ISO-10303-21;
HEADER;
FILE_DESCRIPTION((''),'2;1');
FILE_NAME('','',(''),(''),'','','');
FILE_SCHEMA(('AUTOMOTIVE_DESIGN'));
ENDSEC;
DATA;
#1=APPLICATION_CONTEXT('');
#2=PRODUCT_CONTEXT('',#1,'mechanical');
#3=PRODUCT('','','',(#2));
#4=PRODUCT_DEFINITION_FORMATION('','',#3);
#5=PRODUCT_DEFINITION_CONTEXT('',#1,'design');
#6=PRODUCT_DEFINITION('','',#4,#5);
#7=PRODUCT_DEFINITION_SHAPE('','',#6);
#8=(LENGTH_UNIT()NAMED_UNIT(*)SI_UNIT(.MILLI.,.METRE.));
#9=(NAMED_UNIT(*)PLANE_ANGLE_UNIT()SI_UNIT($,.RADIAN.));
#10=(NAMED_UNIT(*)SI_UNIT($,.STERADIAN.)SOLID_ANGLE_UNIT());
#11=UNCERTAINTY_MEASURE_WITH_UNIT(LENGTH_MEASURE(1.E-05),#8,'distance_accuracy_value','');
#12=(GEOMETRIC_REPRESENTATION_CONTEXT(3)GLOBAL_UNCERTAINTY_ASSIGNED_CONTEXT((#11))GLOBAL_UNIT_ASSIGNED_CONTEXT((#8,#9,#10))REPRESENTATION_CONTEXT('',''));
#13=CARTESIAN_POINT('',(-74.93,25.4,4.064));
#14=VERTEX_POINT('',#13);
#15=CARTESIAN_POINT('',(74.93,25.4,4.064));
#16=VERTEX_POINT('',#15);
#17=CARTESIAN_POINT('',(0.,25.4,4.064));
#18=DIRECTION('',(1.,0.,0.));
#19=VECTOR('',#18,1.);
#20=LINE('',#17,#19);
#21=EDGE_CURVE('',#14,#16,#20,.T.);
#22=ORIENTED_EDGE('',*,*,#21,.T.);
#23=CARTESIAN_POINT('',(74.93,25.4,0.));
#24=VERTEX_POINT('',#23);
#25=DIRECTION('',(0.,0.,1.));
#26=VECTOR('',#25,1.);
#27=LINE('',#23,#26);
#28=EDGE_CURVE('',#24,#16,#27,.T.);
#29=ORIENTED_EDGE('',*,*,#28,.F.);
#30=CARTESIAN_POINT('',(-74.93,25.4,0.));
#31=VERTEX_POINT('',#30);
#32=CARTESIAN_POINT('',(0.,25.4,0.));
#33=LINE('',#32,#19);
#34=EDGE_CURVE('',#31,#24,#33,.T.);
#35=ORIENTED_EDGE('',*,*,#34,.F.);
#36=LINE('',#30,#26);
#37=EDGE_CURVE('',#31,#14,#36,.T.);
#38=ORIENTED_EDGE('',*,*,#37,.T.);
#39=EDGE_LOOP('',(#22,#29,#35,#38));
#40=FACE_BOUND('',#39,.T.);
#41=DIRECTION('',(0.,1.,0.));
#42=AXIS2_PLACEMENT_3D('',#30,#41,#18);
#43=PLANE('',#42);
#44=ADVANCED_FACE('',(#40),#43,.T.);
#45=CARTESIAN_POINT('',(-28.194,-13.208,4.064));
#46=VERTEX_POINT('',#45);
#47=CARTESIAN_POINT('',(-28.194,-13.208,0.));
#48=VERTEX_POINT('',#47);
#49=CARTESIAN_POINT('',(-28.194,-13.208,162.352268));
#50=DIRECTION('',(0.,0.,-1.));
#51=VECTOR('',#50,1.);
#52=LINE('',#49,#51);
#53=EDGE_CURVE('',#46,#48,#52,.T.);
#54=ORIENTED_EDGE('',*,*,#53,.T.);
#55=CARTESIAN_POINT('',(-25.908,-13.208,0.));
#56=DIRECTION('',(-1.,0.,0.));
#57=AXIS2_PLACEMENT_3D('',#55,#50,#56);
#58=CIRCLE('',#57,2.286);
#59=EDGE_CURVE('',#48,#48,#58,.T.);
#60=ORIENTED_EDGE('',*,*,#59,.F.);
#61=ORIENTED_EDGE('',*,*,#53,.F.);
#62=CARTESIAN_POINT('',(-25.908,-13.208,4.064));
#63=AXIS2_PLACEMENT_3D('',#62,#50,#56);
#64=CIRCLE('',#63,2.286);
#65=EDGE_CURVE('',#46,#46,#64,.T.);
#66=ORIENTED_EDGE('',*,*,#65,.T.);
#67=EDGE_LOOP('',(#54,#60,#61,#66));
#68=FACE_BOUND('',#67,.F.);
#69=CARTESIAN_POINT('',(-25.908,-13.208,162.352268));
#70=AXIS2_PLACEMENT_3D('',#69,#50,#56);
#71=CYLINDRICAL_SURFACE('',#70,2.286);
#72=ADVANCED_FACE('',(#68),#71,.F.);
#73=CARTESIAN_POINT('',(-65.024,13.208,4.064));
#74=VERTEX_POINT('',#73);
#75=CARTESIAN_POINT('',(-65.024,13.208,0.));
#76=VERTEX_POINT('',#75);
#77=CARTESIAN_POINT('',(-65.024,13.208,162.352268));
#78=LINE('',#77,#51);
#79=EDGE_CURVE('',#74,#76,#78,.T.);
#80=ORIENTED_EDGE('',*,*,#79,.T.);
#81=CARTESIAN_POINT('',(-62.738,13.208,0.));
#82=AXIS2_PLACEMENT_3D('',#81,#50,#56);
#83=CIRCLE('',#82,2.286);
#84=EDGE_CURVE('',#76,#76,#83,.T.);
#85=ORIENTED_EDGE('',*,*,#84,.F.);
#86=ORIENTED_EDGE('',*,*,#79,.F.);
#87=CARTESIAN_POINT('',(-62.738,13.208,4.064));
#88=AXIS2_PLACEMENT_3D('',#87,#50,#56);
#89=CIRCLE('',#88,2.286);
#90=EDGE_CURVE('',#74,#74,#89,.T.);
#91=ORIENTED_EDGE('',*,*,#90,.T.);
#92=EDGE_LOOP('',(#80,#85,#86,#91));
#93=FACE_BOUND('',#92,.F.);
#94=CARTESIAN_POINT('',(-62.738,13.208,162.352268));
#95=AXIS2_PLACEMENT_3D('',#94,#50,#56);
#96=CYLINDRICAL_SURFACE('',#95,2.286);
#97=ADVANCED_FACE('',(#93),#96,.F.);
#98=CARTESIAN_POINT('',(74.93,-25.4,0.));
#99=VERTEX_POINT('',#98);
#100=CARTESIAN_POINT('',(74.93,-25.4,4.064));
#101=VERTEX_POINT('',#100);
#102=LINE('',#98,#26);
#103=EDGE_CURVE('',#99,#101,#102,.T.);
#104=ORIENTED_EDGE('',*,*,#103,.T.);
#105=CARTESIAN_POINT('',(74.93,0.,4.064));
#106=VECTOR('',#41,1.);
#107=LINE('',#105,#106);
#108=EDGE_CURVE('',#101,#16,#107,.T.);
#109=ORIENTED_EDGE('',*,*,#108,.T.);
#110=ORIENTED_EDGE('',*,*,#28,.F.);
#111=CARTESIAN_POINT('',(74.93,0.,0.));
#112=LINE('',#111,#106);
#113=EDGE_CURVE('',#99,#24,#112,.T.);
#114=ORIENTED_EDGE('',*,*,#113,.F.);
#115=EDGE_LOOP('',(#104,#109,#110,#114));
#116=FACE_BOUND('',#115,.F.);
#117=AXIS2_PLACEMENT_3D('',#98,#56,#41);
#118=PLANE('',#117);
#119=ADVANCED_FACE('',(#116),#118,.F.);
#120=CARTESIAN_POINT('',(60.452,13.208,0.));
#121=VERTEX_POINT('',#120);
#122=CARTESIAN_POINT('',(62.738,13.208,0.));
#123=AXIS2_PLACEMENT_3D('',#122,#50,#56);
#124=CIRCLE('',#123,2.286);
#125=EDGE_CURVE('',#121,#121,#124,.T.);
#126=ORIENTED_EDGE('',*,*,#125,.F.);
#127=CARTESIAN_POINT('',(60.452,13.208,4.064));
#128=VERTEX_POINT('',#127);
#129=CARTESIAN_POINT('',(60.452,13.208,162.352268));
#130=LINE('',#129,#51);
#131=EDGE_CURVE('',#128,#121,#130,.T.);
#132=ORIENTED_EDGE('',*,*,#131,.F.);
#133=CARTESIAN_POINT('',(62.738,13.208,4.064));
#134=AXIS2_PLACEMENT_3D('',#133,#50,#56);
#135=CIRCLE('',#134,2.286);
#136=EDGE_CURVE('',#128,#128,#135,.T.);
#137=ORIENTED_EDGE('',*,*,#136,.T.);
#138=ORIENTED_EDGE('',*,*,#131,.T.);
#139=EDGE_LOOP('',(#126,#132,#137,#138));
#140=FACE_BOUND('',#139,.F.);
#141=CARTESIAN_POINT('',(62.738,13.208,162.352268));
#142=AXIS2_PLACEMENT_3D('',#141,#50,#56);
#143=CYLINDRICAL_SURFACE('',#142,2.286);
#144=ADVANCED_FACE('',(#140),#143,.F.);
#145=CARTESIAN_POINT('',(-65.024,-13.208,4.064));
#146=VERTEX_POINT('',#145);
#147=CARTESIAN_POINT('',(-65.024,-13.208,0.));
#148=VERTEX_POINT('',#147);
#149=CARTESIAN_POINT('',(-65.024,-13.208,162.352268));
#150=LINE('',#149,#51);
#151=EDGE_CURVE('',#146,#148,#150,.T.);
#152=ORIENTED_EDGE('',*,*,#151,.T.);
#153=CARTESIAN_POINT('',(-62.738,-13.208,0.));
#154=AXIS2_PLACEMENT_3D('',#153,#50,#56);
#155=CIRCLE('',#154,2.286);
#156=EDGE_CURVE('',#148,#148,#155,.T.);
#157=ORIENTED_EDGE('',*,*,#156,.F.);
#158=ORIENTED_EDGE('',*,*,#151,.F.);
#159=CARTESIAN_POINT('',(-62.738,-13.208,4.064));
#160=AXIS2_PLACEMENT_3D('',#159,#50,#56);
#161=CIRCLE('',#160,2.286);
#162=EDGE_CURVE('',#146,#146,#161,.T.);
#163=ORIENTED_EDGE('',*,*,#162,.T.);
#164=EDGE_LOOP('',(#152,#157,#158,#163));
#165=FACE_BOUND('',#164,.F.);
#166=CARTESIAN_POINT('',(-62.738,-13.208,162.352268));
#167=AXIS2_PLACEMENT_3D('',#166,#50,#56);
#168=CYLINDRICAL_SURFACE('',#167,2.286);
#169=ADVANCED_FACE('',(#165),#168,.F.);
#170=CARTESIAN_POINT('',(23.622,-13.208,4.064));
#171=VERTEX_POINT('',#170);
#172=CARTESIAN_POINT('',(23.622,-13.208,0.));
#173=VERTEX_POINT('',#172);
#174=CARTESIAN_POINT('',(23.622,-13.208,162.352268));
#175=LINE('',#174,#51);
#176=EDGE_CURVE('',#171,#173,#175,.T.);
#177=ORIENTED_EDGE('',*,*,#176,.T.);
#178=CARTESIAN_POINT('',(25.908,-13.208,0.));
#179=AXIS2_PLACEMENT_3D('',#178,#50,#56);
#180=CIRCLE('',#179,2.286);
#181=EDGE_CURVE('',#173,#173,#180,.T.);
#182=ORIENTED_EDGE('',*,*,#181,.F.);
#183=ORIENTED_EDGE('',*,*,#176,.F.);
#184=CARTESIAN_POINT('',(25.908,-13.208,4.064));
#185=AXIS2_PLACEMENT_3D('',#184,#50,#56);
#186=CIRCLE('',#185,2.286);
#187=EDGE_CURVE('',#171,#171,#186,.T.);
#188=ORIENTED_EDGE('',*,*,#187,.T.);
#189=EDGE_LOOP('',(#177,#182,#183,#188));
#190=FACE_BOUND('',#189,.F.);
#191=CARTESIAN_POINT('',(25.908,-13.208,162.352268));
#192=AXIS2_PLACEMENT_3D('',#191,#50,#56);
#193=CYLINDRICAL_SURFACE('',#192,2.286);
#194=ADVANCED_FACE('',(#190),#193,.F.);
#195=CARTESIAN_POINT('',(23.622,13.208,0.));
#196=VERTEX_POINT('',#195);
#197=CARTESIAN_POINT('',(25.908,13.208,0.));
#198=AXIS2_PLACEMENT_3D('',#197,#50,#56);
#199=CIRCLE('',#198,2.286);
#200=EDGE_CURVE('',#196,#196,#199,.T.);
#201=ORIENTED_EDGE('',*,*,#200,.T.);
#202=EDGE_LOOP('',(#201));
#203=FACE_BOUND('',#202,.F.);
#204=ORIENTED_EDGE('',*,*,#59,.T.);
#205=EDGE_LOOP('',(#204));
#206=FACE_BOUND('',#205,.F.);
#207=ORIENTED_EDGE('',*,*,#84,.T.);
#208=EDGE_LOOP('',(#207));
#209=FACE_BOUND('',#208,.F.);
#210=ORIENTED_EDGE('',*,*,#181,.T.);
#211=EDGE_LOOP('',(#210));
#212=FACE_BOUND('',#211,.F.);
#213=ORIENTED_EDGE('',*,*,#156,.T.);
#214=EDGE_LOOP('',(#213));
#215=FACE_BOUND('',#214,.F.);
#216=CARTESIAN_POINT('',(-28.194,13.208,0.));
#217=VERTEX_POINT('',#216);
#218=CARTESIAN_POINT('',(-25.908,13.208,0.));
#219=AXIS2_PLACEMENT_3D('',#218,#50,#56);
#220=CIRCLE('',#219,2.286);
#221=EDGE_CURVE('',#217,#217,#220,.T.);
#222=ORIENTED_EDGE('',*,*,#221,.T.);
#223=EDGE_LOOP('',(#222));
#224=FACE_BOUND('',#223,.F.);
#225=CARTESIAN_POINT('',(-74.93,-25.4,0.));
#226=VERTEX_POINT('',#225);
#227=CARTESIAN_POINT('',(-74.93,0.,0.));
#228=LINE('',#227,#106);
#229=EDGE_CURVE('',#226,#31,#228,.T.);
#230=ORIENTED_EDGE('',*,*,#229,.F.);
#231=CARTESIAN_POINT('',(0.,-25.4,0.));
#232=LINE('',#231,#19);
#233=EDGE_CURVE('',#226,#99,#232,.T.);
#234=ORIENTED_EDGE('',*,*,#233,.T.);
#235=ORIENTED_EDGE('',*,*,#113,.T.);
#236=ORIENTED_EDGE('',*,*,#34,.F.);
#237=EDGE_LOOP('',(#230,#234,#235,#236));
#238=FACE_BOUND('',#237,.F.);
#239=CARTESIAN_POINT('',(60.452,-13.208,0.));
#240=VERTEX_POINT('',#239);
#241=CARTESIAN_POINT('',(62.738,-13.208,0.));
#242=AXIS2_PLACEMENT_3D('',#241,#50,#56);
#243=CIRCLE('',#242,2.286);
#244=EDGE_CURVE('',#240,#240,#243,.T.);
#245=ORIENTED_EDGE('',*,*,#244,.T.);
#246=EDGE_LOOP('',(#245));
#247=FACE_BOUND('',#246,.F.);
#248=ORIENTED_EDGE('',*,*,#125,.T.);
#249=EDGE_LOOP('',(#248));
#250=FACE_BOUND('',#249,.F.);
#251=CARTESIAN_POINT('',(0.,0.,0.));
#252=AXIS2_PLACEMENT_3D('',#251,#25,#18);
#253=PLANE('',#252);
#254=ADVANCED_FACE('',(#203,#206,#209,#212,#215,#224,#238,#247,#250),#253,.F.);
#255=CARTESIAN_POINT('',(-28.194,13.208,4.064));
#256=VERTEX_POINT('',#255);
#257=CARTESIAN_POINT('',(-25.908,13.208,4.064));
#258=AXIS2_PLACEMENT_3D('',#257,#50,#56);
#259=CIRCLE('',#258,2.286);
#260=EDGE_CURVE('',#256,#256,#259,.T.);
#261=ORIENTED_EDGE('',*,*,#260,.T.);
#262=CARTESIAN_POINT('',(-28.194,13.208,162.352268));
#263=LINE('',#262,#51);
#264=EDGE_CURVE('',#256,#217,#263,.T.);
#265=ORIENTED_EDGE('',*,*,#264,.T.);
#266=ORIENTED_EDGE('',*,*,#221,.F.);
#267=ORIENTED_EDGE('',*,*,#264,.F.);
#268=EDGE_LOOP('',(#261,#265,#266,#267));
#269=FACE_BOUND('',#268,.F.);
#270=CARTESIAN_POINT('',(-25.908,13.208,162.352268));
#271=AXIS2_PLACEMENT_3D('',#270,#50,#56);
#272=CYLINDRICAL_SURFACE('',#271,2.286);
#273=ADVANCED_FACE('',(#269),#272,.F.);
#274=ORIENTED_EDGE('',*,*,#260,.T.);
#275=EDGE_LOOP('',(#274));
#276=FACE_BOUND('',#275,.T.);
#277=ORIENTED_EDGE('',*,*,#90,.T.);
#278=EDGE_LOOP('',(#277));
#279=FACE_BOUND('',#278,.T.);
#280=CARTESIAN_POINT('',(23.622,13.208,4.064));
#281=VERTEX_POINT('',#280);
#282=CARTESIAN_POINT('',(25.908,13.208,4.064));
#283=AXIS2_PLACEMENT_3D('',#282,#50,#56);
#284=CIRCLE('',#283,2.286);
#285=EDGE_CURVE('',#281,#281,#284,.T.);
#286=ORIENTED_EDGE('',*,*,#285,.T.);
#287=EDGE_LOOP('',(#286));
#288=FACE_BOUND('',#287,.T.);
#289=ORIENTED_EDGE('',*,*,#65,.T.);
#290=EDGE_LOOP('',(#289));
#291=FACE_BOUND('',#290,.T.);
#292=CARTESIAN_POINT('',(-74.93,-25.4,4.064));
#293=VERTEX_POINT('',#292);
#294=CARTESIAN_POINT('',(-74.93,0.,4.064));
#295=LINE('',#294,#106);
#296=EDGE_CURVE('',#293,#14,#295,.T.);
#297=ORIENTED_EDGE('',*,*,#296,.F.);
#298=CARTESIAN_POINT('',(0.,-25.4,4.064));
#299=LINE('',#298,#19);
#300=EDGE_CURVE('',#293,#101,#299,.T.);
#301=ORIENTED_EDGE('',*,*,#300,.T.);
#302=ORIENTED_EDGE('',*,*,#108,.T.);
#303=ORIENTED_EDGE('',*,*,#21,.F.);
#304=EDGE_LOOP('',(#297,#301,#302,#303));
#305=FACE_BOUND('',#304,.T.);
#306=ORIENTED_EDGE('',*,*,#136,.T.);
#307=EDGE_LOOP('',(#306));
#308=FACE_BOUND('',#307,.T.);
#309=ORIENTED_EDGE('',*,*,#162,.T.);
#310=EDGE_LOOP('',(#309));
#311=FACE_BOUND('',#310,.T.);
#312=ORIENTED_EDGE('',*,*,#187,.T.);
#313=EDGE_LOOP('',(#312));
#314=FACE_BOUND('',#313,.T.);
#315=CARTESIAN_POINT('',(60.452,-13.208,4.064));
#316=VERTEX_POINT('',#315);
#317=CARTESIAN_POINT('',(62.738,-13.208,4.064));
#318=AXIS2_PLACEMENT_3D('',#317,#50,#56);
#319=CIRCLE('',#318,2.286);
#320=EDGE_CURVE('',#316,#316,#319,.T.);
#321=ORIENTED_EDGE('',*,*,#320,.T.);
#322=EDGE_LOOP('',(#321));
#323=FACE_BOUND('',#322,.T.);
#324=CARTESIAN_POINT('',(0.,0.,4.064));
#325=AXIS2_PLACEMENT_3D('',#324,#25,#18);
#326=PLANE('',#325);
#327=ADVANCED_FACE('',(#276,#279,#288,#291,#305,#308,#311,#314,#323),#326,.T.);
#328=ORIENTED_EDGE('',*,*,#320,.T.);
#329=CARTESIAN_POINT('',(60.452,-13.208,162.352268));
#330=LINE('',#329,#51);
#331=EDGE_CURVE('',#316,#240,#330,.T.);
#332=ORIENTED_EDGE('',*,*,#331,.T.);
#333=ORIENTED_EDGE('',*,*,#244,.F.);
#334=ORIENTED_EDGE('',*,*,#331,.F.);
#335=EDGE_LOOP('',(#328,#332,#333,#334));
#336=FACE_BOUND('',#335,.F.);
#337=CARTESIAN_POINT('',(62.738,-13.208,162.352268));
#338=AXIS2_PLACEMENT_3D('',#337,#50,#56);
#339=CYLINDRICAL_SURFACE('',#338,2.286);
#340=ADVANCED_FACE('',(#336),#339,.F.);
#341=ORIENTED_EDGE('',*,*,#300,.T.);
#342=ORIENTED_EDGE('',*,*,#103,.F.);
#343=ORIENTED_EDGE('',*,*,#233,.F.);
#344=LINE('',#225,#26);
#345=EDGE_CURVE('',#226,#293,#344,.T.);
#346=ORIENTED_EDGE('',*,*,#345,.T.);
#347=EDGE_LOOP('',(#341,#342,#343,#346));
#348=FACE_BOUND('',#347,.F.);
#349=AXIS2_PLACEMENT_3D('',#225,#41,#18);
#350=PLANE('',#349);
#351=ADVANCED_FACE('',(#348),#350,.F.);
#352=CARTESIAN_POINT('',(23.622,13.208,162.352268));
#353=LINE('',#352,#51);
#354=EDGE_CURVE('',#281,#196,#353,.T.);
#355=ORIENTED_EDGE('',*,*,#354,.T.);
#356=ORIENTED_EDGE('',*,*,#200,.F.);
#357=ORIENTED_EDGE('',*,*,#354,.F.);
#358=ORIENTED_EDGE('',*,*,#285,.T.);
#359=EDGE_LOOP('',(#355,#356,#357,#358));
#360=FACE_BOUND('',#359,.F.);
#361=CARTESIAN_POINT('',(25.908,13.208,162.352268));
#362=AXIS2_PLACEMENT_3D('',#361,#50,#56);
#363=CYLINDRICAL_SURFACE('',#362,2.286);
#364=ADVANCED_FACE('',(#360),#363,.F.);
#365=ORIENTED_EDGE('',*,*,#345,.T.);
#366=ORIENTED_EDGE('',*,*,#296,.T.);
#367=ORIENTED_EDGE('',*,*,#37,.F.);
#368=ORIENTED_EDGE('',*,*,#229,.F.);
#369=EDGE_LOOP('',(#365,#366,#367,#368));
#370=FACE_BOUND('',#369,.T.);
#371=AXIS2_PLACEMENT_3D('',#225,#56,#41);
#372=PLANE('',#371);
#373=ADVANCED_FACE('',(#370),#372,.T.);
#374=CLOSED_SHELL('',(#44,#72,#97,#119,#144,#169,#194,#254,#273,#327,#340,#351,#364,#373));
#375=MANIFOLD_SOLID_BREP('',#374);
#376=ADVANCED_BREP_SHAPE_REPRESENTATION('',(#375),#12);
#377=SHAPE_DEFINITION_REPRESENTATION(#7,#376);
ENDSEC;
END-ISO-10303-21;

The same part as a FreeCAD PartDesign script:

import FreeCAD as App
import Part
import Sketcher

V = App.Vector
Q = App.Units.Quantity


def add_polygon(sketch, points):
    """Adds a closed chain of lines whose ends are joined by coincident constraints."""
    first, n = sketch.GeometryCount, len(points)
    for a, b in zip(points, points[1:] + points[:1]):
        sketch.addGeometry(Part.LineSegment(App.Vector(*a, 0), App.Vector(*b, 0)), False)
    for i in range(n):
        sketch.addConstraint(Sketcher.Constraint("Coincident", first + i, 2, first + (i + 1) % n, 1))

doc = App.newDocument("Part")
body = doc.addObject("PartDesign::Body", "Body")

# Sketch on XY plane
sketch1 = body.newObject("Sketcher::SketchObject", "Sketch")
sketch1.AttachmentSupport = (doc.getObject("XY_Plane"), [""])
sketch1.MapMode = "FlatFace"
add_polygon(sketch1, [(-75, 25), (-75, -25), (75, -25), (75, 25)])  # lines 0-3
sketch1.addConstraint(Sketcher.Constraint("Vertical", 0))
sketch1.addConstraint(Sketcher.Constraint("Horizontal", 1))
sketch1.addConstraint(Sketcher.Constraint("Vertical", 2))
sketch1.addConstraint(Sketcher.Constraint("Horizontal", 3))
sketch1.addConstraint(Sketcher.Constraint("Symmetric", 0, 2, 2, 2, -1, 1))
sketch1.addConstraint(Sketcher.Constraint("DistanceY", 0, 2, 0, 1, Q("2 in")))
sketch1.addConstraint(Sketcher.Constraint("DistanceX", 1, 1, 1, 2, Q("5.9 in")))
pad1 = body.newObject("PartDesign::Pad", "Pad")
pad1.Profile = sketch1
pad1.Length = Q("0.16 in")

# Sketch on XY plane
sketch2 = body.newObject("Sketcher::SketchObject", "Sketch001")
sketch2.AttachmentSupport = (doc.getObject("XY_Plane"), [""])
sketch2.MapMode = "FlatFace"
sketch2.AttachmentOffset = App.Placement(V(0, 0, 0.16 * 25.4), App.Rotation())
sketch2.addGeometry(Part.Circle(V(-62.7, 13.2, 0), V(0, 0, 1), 2.3), False)
sketch2.addGeometry(Part.Circle(V(-25.9, 13.2, 0), V(0, 0, 1), 2.3), False)
sketch2.addGeometry(Part.Circle(V(-25.9, -13.2, 0), V(0, 0, 1), 2.3), False)
sketch2.addGeometry(Part.Circle(V(-62.7, -13.2, 0), V(0, 0, 1), 2.3), False)
sketch2.addGeometry(Part.Circle(V(25.9, 13.2, 0), V(0, 0, 1), 2.3), False)
sketch2.addGeometry(Part.Circle(V(62.7, 13.2, 0), V(0, 0, 1), 2.3), False)
sketch2.addGeometry(Part.Circle(V(62.7, -13.2, 0), V(0, 0, 1), 2.3), False)
sketch2.addGeometry(Part.Circle(V(25.9, -13.2, 0), V(0, 0, 1), 2.3), False)
sketch2.addConstraint(Sketcher.Constraint("Equal", 0, 1))
sketch2.addConstraint(Sketcher.Constraint("Equal", 1, 2))
sketch2.addConstraint(Sketcher.Constraint("Equal", 2, 3))
sketch2.addConstraint(Sketcher.Constraint("Equal", 3, 4))
sketch2.addConstraint(Sketcher.Constraint("Equal", 4, 5))
sketch2.addConstraint(Sketcher.Constraint("Equal", 5, 6))
sketch2.addConstraint(Sketcher.Constraint("Equal", 6, 7))
sketch2.addConstraint(Sketcher.Constraint("Symmetric", 2, 3, 4, 3, -1, 1))
sketch2.addConstraint(Sketcher.Constraint("Symmetric", 3, 3, 5, 3, -1, 1))
sketch2.addConstraint(Sketcher.Constraint("Symmetric", 0, 3, 6, 3, -1, 1))
sketch2.addConstraint(Sketcher.Constraint("Symmetric", 1, 3, 7, 3, -1, 1))
sketch2.addConstraint(Sketcher.Constraint("Symmetric", 1, 3, 4, 3, -2))
sketch2.addConstraint(Sketcher.Constraint("Symmetric", 0, 3, 5, 3, -2))
sketch2.addConstraint(Sketcher.Constraint("Horizontal", 0, 3, 1, 3))
sketch2.addConstraint(Sketcher.Constraint("Diameter", 0, Q("0.18 in")))
sketch2.addConstraint(Sketcher.Constraint("DistanceX", 0, 3, -1, 1, Q("2.47 in")))
sketch2.addConstraint(Sketcher.Constraint("DistanceY", -1, 1, 0, 3, Q("0.52 in")))
sketch2.addConstraint(Sketcher.Constraint("DistanceX", 1, 3, -1, 1, Q("1.02 in")))
doc.recompute()
hole = body.newObject("PartDesign::Hole", "Hole")
hole.Profile = sketch2
hole.ThreadType = "None"
hole.Diameter = Q("0.18 in")
hole.DepthType = "ThroughAll"

doc.recompute()
